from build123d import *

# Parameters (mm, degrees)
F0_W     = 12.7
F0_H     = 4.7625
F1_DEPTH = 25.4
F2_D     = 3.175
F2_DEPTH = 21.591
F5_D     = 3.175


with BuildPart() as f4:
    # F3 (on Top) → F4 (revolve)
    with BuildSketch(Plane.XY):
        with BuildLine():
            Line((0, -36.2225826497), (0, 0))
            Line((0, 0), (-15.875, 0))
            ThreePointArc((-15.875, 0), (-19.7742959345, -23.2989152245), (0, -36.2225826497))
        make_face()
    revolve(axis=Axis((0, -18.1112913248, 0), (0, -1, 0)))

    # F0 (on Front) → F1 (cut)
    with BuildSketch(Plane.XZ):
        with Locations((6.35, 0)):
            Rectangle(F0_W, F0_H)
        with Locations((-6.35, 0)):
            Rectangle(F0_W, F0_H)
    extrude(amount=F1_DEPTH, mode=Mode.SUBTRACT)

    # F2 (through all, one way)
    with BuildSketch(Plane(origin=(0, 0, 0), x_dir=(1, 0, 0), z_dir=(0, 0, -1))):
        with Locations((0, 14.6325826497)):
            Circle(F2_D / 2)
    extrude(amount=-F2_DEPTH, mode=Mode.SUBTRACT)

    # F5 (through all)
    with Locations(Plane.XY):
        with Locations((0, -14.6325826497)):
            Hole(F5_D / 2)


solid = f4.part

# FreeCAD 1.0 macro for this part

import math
import FreeCAD as App
import Part
import Sketcher
Q = App.Units.Quantity


def add_polygon(sketch, points):
    """Adds a closed chain of lines whose ends are joined by coincident constraints."""
    first, n = sketch.GeometryCount, len(points)
    for a, b in zip(points, points[1:] + points[:1]):
        sketch.addGeometry(Part.LineSegment(App.Vector(*a, 0), App.Vector(*b, 0)), False)
    for i in range(n):
        sketch.addConstraint(Sketcher.Constraint("Coincident", first + i, 2, first + (i + 1) % n, 1))

doc = App.newDocument("Part")
body = doc.addObject("PartDesign::Body", "Body")

sketch1 = doc.addObject("Sketcher::SketchObject", "Sketch")
body.addObject(sketch1)
sketch1.AttachmentSupport = (doc.XY_Plane, [""])
sketch1.MapMode = "FlatFace"
sketch1.addGeometry(Part.LineSegment(App.Vector(0, -36, 0), App.Vector(0, 0, 0)), False)
sketch1.addGeometry(Part.LineSegment(App.Vector(0, 0, 0), App.Vector(-16, 0, 0)), False)
sketch1.addGeometry(Part.ArcOfCircle(Part.Circle(App.Vector(0, -15, 0), App.Vector(0, 0, 1), 22), math.radians(137), math.radians(270)), False)
sketch1.addConstraint(Sketcher.Constraint("Coincident", 0, 2, 1, 1))
sketch1.addConstraint(Sketcher.Constraint("Coincident", 1, 2, 2, 1))
sketch1.addConstraint(Sketcher.Constraint("Coincident", 2, 2, 0, 1))
sketch1.addConstraint(Sketcher.Constraint("Vertical", 0))
sketch1.addConstraint(Sketcher.Constraint("Horizontal", 1))
sketch1.addConstraint(Sketcher.Constraint("Coincident", 0, 2, -1, 1))
sketch1.addConstraint(Sketcher.Constraint("PointOnObject", 2, 3, -2))
sketch1.addConstraint(Sketcher.Constraint("Radius", 2, Q("0.85 in")))
sketch1.addConstraint(Sketcher.Constraint("DistanceX", 1, 2, 1, 1, Q("0.625 in")))
revolution = doc.addObject("PartDesign::Revolution", "Revolution")
body.addObject(revolution)
revolution.Profile = sketch1
revolution.ReferenceAxis = (sketch1, ["V_Axis"])
revolution.Angle = 360

sketch2 = doc.addObject("Sketcher::SketchObject", "Sketch001")
body.addObject(sketch2)
sketch2.AttachmentSupport = (doc.XZ_Plane, [""])
sketch2.MapMode = "FlatFace"
add_polygon(sketch2, [(12.7, -2.4), (12.7, 2.4), (-12.7, 2.4), (-12.7, -2.4)])
sketch2.addConstraint(Sketcher.Constraint("Vertical", 0))
sketch2.addConstraint(Sketcher.Constraint("Horizontal", 1))
sketch2.addConstraint(Sketcher.Constraint("Vertical", 2))
sketch2.addConstraint(Sketcher.Constraint("Horizontal", 3))
sketch2.addConstraint(Sketcher.Constraint("Symmetric", 0, 2, 2, 2, -1, 1))
sketch2.addConstraint(Sketcher.Constraint("DistanceX", 1, 2, 1, 1, Q("1 in")))
sketch2.addConstraint(Sketcher.Constraint("DistanceY", 0, 1, 0, 2, Q("0.1875 in")))
pocket1 = doc.addObject("PartDesign::Pocket", "Pocket")
body.addObject(pocket1)
pocket1.Profile = sketch2
pocket1.Length = Q("1 in")
pocket1.Reversed = True

sketch3 = doc.addObject("Sketcher::SketchObject", "Sketch002")
body.addObject(sketch3)
sketch3.AttachmentSupport = (doc.XY_Plane, [""])
sketch3.MapMode = "FlatFace"
sketch3.addGeometry(Part.Circle(App.Vector(0, -14.6, 0), App.Vector(0, 0, 1), 1.6), False)
sketch3.addConstraint(Sketcher.Constraint("PointOnObject", 0, 3, -2))
sketch3.addConstraint(Sketcher.Constraint("Diameter", 0, Q("0.125 in")))
sketch3.addConstraint(Sketcher.Constraint("DistanceY", 0, 3, -1, 1, Q("14.632583 mm")))
pocket2 = doc.addObject("PartDesign::Pocket", "Pocket001")
body.addObject(pocket2)
pocket2.Profile = sketch3
pocket2.Type = "ThroughAll"
pocket2.Reversed = True

sketch4 = doc.addObject("Sketcher::SketchObject", "Sketch003")
body.addObject(sketch4)
sketch4.AttachmentSupport = (doc.XY_Plane, [""])
sketch4.MapMode = "FlatFace"
sketch4.addGeometry(Part.Circle(App.Vector(0, -14.6, 0), App.Vector(0, 0, 1), 1.6), False)
sketch4.addConstraint(Sketcher.Constraint("PointOnObject", 0, 3, -2))
sketch4.addConstraint(Sketcher.Constraint("Diameter", 0, Q("0.125 in")))
sketch4.addConstraint(Sketcher.Constraint("DistanceY", 0, 3, -1, 1, Q("14.632583 mm")))
doc.recompute()
hole = doc.addObject("PartDesign::Hole", "Hole")
body.addObject(hole)
hole.Profile = sketch4
hole.ThreadType = "None"
hole.Diameter = Q("0.125 in")
hole.DepthType = "ThroughAll"

doc.recompute()
